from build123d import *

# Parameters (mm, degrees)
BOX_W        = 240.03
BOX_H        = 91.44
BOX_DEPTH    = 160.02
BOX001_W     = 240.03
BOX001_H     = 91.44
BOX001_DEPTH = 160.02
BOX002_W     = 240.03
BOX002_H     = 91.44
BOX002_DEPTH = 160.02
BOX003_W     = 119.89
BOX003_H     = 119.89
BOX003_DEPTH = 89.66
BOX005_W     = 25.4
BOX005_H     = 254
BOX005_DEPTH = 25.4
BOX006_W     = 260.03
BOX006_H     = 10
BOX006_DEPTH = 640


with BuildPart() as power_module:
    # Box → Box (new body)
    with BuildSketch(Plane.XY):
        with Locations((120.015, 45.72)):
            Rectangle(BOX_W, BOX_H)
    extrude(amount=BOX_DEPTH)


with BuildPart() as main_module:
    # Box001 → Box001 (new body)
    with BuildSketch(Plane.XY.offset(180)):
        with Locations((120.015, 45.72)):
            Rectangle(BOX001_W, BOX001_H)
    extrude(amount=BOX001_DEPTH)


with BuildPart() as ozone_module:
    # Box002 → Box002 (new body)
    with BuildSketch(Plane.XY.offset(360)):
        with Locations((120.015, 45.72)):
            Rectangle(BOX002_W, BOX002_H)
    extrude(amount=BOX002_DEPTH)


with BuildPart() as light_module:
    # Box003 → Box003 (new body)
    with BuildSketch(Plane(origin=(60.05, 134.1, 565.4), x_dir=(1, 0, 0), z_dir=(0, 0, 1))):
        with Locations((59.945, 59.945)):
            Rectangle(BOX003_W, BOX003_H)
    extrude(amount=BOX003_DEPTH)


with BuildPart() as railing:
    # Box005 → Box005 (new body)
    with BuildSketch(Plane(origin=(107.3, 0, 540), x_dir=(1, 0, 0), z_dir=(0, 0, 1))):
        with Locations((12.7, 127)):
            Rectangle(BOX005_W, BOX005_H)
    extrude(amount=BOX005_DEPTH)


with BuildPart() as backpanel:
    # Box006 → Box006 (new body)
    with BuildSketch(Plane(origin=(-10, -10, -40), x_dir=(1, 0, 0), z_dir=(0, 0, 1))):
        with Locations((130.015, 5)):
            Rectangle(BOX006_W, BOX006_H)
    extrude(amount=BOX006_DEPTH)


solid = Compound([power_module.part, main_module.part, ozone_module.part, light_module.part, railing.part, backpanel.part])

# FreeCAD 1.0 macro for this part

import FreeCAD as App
import Part
import Sketcher

V = App.Vector
Q = App.Units.Quantity


def add_polygon(sketch, points):
    """Adds a closed chain of lines whose ends are joined by coincident constraints."""
    first, n = sketch.GeometryCount, len(points)
    for a, b in zip(points, points[1:] + points[:1]):
        sketch.addGeometry(Part.LineSegment(App.Vector(*a, 0), App.Vector(*b, 0)), False)
    for i in range(n):
        sketch.addConstraint(Sketcher.Constraint("Coincident", first + i, 2, first + (i + 1) % n, 1))

doc = App.newDocument("Part")
params = doc.addObject("Spreadsheet::Sheet", "Params")
for row, (alias, value) in enumerate([
    ("sketch1_height", "3.6 in"),
    ("sketch1_width", "9.45 in"),
    ("pad1_length", "6.3 in"),
    ("sketch2_height", "3.6 in"),
    ("sketch2_width", "9.45 in"),
    ("pad2_length", "6.3 in"),
    ("sketch3_height", "3.6 in"),
    ("sketch3_width", "9.45 in"),
    ("pad3_length", "6.3 in"),
    ("pad4_length", "89.66 mm"),
    ("sketch5_width", "1 in"),
    ("sketch5_height", "10 in"),
    ("pad5_length", "1 in"),
    ("pad6_length", "640 mm"),
], start=1):
    params.set(f"A{row}", alias)
    params.set(f"B{row}", "=" + value)
    params.setAlias(f"B{row}", alias)

body = doc.addObject("PartDesign::Body", "Body")

sketch1 = body.newObject("Sketcher::SketchObject", "Sketch")
sketch1.AttachmentSupport = (doc.getObject("XY_Plane"), [""])
sketch1.MapMode = "FlatFace"
add_polygon(sketch1, [(0, 91.44), (0, 0), (240.03, 0), (240.03, 91.44)])
sketch1.addConstraint([
    Sketcher.Constraint("Vertical", 0),
    Sketcher.Constraint("Horizontal", 1),
    Sketcher.Constraint("Vertical", 2),
    Sketcher.Constraint("Horizontal", 3),
    Sketcher.Constraint("Coincident", 0, 2, -1, 1),
    Sketcher.Constraint("DistanceY", 0, 2, 0, 1, Q("3.6 in")),
    Sketcher.Constraint("DistanceX", 1, 1, 1, 2, Q("9.45 in")),
])
sketch1.setExpression("Constraints[9]", "Params.sketch1_height")
sketch1.setExpression("Constraints[10]", "Params.sketch1_width")
pad1 = body.newObject("PartDesign::Pad", "Pad")
pad1.Profile = sketch1
pad1.setExpression("Length", "Params.pad1_length")
body2 = doc.addObject("PartDesign::Body", "Body001")

sketch2 = body2.newObject("Sketcher::SketchObject", "Sketch001")
sketch2.AttachmentSupport = (doc.getObject("XY_Plane001"), [""])
sketch2.MapMode = "FlatFace"
sketch2.AttachmentOffset = App.Placement(V(0, 0, 180), App.Rotation())
add_polygon(sketch2, [(0, 91.44), (0, 0), (240.03, 0), (240.03, 91.44)])
sketch2.addConstraint([
    Sketcher.Constraint("Vertical", 0),
    Sketcher.Constraint("Horizontal", 1),
    Sketcher.Constraint("Vertical", 2),
    Sketcher.Constraint("Horizontal", 3),
    Sketcher.Constraint("Coincident", 0, 2, -1, 1),
    Sketcher.Constraint("DistanceY", 0, 2, 0, 1, Q("3.6 in")),
    Sketcher.Constraint("DistanceX", 1, 1, 1, 2, Q("9.45 in")),
])
sketch2.setExpression("Constraints[9]", "Params.sketch2_height")
sketch2.setExpression("Constraints[10]", "Params.sketch2_width")
pad2 = body2.newObject("PartDesign::Pad", "Pad001")
pad2.Profile = sketch2
pad2.setExpression("Length", "Params.pad2_length")
body3 = doc.addObject("PartDesign::Body", "Body002")

sketch3 = body3.newObject("Sketcher::SketchObject", "Sketch002")
sketch3.AttachmentSupport = (doc.getObject("XY_Plane002"), [""])
sketch3.MapMode = "FlatFace"
sketch3.AttachmentOffset = App.Placement(V(0, 0, 360), App.Rotation())
add_polygon(sketch3, [(0, 91.44), (0, 0), (240.03, 0), (240.03, 91.44)])
sketch3.addConstraint([
    Sketcher.Constraint("Vertical", 0),
    Sketcher.Constraint("Horizontal", 1),
    Sketcher.Constraint("Vertical", 2),
    Sketcher.Constraint("Horizontal", 3),
    Sketcher.Constraint("Coincident", 0, 2, -1, 1),
    Sketcher.Constraint("DistanceY", 0, 2, 0, 1, Q("3.6 in")),
    Sketcher.Constraint("DistanceX", 1, 1, 1, 2, Q("9.45 in")),
])
sketch3.setExpression("Constraints[9]", "Params.sketch3_height")
sketch3.setExpression("Constraints[10]", "Params.sketch3_width")
pad3 = body3.newObject("PartDesign::Pad", "Pad002")
pad3.Profile = sketch3
pad3.setExpression("Length", "Params.pad3_length")
body4 = doc.addObject("PartDesign::Body", "Body003")

sketch4 = body4.newObject("Sketcher::SketchObject", "Sketch003")
sketch4.AttachmentSupport = (doc.getObject("XY_Plane003"), [""])
sketch4.MapMode = "FlatFace"
sketch4.AttachmentOffset = App.Placement(V(0, 0, 565.4), App.Rotation())
add_polygon(sketch4, [(60.05, 253.99), (60.05, 134.1), (179.94, 134.1), (179.94, 253.99)])
sketch4.addConstraint([
    Sketcher.Constraint("Vertical", 0),
    Sketcher.Constraint("Horizontal", 1),
    Sketcher.Constraint("Vertical", 2),
    Sketcher.Constraint("Horizontal", 3),
    Sketcher.Constraint("Equal", 3, 0),
    Sketcher.Constraint("DistanceX", 1, 1, 1, 2, 119.89),
    Sketcher.Constraint("DistanceX", -1, 1, 0, 2, 60.05),
    Sketcher.Constraint("DistanceY", -1, 1, 0, 2, 134.1),
])
pad4 = body4.newObject("PartDesign::Pad", "Pad003")
pad4.Profile = sketch4
pad4.setExpression("Length", "Params.pad4_length")
body5 = doc.addObject("PartDesign::Body", "Body004")

sketch5 = body5.newObject("Sketcher::SketchObject", "Sketch004")
sketch5.AttachmentSupport = (doc.getObject("XY_Plane004"), [""])
sketch5.MapMode = "FlatFace"
sketch5.AttachmentOffset = App.Placement(V(0, 0, 540), App.Rotation())
add_polygon(sketch5, [(107.3, 254), (107.3, 0), (132.7, 0), (132.7, 254)])
sketch5.addConstraint([
    Sketcher.Constraint("Vertical", 0),
    Sketcher.Constraint("Horizontal", 1),
    Sketcher.Constraint("Vertical", 2),
    Sketcher.Constraint("Horizontal", 3),
    Sketcher.Constraint("PointOnObject", 0, 2, -1),
    Sketcher.Constraint("DistanceX", 1, 1, 1, 2, Q("1 in")),
    Sketcher.Constraint("DistanceY", 0, 2, 0, 1, Q("10 in")),
    Sketcher.Constraint("DistanceX", -1, 1, 0, 2, 107.3),
])
sketch5.setExpression("Constraints[9]", "Params.sketch5_width")
sketch5.setExpression("Constraints[10]", "Params.sketch5_height")
pad5 = body5.newObject("PartDesign::Pad", "Pad004")
pad5.Profile = sketch5
pad5.setExpression("Length", "Params.pad5_length")
body6 = doc.addObject("PartDesign::Body", "Body005")

sketch6 = body6.newObject("Sketcher::SketchObject", "Sketch005")
sketch6.AttachmentSupport = (doc.getObject("XY_Plane005"), [""])
sketch6.MapMode = "FlatFace"
sketch6.AttachmentOffset = App.Placement(V(0, 0, -40), App.Rotation())
add_polygon(sketch6, [(-10, 0), (-10, -10), (250.03, -10), (250.03, 0)])
sketch6.addConstraint([
    Sketcher.Constraint("Vertical", 0),
    Sketcher.Constraint("Horizontal", 1),
    Sketcher.Constraint("Vertical", 2),
    Sketcher.Constraint("Horizontal", 3),
    Sketcher.Constraint("PointOnObject", 2, 2, -1),
    Sketcher.Constraint("DistanceX", 1, 1, 1, 2, 260.03),
    Sketcher.Constraint("DistanceY", 0, 2, 0, 1, 10.0),
    Sketcher.Constraint("DistanceX", 0, 2, -1, 1, 10.0),
])
pad6 = body6.newObject("PartDesign::Pad", "Pad005")
pad6.Profile = sketch6
pad6.setExpression("Length", "Params.pad6_length")

doc.recompute()
